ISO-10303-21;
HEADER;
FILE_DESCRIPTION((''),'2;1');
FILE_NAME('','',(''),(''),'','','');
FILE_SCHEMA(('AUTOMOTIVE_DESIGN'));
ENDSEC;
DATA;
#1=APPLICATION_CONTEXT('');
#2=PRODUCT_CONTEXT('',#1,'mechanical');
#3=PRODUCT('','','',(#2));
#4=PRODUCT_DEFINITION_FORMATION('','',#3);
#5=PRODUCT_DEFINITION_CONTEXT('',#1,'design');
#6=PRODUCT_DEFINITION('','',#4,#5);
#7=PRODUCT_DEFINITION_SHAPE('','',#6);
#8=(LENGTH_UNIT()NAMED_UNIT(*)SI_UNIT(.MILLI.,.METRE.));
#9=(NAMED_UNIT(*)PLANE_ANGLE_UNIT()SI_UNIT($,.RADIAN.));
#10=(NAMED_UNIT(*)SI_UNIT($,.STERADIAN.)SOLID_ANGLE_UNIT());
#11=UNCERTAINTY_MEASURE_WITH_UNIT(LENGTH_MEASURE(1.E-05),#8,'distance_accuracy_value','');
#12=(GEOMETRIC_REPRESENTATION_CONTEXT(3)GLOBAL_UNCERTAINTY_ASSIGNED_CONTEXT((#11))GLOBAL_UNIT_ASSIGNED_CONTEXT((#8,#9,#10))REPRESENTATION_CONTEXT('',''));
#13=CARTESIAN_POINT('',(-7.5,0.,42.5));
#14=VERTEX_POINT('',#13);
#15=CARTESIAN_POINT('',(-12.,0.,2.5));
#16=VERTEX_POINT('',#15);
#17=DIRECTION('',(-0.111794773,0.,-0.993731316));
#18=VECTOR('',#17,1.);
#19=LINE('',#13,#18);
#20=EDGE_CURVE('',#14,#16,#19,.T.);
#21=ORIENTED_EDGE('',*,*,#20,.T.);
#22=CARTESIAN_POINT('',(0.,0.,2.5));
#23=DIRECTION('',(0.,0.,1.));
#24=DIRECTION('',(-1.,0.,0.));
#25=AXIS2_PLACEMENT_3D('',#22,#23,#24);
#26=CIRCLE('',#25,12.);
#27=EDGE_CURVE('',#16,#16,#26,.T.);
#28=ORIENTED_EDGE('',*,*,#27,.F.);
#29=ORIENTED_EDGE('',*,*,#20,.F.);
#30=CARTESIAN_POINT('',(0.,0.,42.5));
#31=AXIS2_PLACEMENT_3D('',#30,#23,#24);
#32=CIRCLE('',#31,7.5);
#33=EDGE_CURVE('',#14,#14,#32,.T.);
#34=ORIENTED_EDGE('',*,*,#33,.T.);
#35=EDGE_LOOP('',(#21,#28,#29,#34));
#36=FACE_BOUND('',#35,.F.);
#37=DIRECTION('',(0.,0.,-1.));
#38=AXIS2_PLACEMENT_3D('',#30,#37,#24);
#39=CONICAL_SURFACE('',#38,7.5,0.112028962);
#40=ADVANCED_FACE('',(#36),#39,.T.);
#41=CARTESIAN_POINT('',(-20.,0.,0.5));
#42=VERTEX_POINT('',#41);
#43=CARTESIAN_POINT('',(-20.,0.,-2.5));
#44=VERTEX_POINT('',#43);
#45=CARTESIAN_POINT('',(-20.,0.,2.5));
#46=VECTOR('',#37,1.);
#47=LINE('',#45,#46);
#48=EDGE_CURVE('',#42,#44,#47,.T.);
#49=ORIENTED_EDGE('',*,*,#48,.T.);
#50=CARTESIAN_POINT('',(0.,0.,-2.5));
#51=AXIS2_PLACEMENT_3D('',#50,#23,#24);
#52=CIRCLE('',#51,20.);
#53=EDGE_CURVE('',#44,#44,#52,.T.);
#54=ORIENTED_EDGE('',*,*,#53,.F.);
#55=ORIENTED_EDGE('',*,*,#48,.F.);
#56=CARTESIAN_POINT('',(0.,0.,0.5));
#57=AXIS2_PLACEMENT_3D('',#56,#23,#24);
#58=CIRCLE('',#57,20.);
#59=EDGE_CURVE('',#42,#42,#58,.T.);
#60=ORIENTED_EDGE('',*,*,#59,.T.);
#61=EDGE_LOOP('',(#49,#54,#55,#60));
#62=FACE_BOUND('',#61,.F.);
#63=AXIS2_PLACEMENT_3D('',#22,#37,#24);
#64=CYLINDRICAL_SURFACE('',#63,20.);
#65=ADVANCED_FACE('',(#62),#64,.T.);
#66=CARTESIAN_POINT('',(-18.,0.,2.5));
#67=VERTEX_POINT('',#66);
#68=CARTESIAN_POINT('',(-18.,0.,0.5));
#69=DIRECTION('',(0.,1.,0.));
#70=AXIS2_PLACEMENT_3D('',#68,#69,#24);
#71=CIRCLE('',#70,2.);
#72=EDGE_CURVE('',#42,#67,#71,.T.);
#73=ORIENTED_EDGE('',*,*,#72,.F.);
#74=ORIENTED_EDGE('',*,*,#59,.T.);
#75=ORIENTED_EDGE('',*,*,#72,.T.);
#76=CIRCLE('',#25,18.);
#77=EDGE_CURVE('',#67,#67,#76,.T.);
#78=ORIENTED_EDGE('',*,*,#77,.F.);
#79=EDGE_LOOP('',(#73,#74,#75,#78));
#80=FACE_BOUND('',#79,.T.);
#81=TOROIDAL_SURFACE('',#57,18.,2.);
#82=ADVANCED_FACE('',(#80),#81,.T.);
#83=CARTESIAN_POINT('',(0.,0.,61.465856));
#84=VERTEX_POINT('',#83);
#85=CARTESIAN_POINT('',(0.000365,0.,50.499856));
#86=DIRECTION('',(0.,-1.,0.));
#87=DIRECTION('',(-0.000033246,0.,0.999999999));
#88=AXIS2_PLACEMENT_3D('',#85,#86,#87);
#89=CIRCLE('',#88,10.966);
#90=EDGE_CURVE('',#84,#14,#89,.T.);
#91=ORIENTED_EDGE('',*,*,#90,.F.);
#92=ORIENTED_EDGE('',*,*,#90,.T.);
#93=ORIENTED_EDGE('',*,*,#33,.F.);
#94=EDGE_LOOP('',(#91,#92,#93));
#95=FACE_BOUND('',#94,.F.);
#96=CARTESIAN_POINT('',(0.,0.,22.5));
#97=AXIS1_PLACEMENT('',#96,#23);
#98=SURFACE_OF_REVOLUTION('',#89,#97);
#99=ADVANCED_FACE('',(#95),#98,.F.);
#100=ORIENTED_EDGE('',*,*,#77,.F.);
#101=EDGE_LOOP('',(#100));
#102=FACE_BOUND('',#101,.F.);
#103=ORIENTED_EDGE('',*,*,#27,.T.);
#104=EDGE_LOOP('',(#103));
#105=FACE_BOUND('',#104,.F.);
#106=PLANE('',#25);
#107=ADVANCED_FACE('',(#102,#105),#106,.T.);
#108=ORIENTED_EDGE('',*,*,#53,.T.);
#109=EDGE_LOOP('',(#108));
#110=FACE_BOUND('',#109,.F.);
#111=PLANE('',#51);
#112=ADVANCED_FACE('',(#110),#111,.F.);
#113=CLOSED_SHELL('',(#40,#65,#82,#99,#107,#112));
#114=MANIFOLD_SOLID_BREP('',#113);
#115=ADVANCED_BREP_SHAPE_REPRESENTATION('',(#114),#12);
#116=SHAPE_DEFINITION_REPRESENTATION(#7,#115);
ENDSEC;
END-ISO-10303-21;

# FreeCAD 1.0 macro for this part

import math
import FreeCAD as App
import Part
import Sketcher
Q = App.Units.Quantity


def edges_at(feature, points):
    """Names of the edges that pass closest to the given points."""
    edges = feature.Shape.Edges
    near = lambda p: min(range(len(edges)), key=lambda i: edges[i].distToShape(Part.Vertex(*p))[0])
    return sorted({f"Edge{near(p) + 1}" for p in points})

doc = App.newDocument("Part")
body = doc.addObject("PartDesign::Body", "Body")

# Sketch on XZ plane
sketch1 = body.newObject("Sketcher::SketchObject", "Sketch")
sketch1.AttachmentSupport = (doc.getObject("XZ_Plane"), [""])
sketch1.MapMode = "FlatFace"
sketch1.addGeometry([
    Part.LineSegment(App.Vector(-20, 2.5, 0), App.Vector(-20, -2.5, 0)),  # 0
    Part.LineSegment(App.Vector(-20, -2.5, 0), App.Vector(0, -2.5, 0)),  # 1
    Part.LineSegment(App.Vector(0, -2.5, 0), App.Vector(0, 61.465856, 0)),  # 2
    Part.ArcOfCircle(Part.Circle(App.Vector(0.000365, 50.499856, 0), App.Vector(0, 0, 1), 10.966), math.radians(90.001905), math.radians(226.845705)),  # 3
    Part.LineSegment(App.Vector(-7.5, 42.5, 0), App.Vector(-12, 2.5, 0)),  # 4
    Part.LineSegment(App.Vector(-12, 2.5, 0), App.Vector(-20, 2.5, 0)),  # 5
], False)
sketch1.addConstraint([
    Sketcher.Constraint("Coincident", 0, 2, 1, 1),
    Sketcher.Constraint("Coincident", 1, 2, 2, 1),
    Sketcher.Constraint("Coincident", 2, 2, 3, 1),
    Sketcher.Constraint("Coincident", 3, 2, 4, 1),
    Sketcher.Constraint("Coincident", 4, 2, 5, 1),
    Sketcher.Constraint("Coincident", 5, 2, 0, 1),
    Sketcher.Constraint("Vertical", 0),
    Sketcher.Constraint("Horizontal", 1),
    Sketcher.Constraint("Vertical", 2),
    Sketcher.Constraint("Horizontal", 5),
    Sketcher.Constraint("PointOnObject", 1, 2, -2),
    Sketcher.Constraint("DistanceX", 1, 1, 1, 2, Q("20 mm")),
    Sketcher.Constraint("DistanceX", 5, 2, 5, 1, Q("8 mm")),
    Sketcher.Constraint("DistanceY", 0, 2, 0, 1, Q("5 mm")),
    Sketcher.Constraint("Radius", 3, Q("10.966 mm")),
    Sketcher.Constraint("DistanceY", 1, 2, 3, 2, Q("45 mm")),
    Sketcher.Constraint("DistanceY", 0, 2, -1, 1, Q("2.5 mm")),
    Sketcher.Constraint("DistanceX", 3, 2, -1, 1, Q("7.5 mm")),
    Sketcher.Constraint("DistanceY", 2, 1, 2, 2, Q("63.965856 mm")),
])
revolution = body.newObject("PartDesign::Revolution", "Revolution")
revolution.Profile = sketch1
revolution.ReferenceAxis = (sketch1, ["V_Axis"])
revolution.Angle = 360
doc.recompute()

fillet = body.newObject("PartDesign::Fillet", "Fillet")
fillet.Base = (revolution, edges_at(revolution, [(20, 0, 2.5)]))
fillet.Radius = 2

doc.recompute()
